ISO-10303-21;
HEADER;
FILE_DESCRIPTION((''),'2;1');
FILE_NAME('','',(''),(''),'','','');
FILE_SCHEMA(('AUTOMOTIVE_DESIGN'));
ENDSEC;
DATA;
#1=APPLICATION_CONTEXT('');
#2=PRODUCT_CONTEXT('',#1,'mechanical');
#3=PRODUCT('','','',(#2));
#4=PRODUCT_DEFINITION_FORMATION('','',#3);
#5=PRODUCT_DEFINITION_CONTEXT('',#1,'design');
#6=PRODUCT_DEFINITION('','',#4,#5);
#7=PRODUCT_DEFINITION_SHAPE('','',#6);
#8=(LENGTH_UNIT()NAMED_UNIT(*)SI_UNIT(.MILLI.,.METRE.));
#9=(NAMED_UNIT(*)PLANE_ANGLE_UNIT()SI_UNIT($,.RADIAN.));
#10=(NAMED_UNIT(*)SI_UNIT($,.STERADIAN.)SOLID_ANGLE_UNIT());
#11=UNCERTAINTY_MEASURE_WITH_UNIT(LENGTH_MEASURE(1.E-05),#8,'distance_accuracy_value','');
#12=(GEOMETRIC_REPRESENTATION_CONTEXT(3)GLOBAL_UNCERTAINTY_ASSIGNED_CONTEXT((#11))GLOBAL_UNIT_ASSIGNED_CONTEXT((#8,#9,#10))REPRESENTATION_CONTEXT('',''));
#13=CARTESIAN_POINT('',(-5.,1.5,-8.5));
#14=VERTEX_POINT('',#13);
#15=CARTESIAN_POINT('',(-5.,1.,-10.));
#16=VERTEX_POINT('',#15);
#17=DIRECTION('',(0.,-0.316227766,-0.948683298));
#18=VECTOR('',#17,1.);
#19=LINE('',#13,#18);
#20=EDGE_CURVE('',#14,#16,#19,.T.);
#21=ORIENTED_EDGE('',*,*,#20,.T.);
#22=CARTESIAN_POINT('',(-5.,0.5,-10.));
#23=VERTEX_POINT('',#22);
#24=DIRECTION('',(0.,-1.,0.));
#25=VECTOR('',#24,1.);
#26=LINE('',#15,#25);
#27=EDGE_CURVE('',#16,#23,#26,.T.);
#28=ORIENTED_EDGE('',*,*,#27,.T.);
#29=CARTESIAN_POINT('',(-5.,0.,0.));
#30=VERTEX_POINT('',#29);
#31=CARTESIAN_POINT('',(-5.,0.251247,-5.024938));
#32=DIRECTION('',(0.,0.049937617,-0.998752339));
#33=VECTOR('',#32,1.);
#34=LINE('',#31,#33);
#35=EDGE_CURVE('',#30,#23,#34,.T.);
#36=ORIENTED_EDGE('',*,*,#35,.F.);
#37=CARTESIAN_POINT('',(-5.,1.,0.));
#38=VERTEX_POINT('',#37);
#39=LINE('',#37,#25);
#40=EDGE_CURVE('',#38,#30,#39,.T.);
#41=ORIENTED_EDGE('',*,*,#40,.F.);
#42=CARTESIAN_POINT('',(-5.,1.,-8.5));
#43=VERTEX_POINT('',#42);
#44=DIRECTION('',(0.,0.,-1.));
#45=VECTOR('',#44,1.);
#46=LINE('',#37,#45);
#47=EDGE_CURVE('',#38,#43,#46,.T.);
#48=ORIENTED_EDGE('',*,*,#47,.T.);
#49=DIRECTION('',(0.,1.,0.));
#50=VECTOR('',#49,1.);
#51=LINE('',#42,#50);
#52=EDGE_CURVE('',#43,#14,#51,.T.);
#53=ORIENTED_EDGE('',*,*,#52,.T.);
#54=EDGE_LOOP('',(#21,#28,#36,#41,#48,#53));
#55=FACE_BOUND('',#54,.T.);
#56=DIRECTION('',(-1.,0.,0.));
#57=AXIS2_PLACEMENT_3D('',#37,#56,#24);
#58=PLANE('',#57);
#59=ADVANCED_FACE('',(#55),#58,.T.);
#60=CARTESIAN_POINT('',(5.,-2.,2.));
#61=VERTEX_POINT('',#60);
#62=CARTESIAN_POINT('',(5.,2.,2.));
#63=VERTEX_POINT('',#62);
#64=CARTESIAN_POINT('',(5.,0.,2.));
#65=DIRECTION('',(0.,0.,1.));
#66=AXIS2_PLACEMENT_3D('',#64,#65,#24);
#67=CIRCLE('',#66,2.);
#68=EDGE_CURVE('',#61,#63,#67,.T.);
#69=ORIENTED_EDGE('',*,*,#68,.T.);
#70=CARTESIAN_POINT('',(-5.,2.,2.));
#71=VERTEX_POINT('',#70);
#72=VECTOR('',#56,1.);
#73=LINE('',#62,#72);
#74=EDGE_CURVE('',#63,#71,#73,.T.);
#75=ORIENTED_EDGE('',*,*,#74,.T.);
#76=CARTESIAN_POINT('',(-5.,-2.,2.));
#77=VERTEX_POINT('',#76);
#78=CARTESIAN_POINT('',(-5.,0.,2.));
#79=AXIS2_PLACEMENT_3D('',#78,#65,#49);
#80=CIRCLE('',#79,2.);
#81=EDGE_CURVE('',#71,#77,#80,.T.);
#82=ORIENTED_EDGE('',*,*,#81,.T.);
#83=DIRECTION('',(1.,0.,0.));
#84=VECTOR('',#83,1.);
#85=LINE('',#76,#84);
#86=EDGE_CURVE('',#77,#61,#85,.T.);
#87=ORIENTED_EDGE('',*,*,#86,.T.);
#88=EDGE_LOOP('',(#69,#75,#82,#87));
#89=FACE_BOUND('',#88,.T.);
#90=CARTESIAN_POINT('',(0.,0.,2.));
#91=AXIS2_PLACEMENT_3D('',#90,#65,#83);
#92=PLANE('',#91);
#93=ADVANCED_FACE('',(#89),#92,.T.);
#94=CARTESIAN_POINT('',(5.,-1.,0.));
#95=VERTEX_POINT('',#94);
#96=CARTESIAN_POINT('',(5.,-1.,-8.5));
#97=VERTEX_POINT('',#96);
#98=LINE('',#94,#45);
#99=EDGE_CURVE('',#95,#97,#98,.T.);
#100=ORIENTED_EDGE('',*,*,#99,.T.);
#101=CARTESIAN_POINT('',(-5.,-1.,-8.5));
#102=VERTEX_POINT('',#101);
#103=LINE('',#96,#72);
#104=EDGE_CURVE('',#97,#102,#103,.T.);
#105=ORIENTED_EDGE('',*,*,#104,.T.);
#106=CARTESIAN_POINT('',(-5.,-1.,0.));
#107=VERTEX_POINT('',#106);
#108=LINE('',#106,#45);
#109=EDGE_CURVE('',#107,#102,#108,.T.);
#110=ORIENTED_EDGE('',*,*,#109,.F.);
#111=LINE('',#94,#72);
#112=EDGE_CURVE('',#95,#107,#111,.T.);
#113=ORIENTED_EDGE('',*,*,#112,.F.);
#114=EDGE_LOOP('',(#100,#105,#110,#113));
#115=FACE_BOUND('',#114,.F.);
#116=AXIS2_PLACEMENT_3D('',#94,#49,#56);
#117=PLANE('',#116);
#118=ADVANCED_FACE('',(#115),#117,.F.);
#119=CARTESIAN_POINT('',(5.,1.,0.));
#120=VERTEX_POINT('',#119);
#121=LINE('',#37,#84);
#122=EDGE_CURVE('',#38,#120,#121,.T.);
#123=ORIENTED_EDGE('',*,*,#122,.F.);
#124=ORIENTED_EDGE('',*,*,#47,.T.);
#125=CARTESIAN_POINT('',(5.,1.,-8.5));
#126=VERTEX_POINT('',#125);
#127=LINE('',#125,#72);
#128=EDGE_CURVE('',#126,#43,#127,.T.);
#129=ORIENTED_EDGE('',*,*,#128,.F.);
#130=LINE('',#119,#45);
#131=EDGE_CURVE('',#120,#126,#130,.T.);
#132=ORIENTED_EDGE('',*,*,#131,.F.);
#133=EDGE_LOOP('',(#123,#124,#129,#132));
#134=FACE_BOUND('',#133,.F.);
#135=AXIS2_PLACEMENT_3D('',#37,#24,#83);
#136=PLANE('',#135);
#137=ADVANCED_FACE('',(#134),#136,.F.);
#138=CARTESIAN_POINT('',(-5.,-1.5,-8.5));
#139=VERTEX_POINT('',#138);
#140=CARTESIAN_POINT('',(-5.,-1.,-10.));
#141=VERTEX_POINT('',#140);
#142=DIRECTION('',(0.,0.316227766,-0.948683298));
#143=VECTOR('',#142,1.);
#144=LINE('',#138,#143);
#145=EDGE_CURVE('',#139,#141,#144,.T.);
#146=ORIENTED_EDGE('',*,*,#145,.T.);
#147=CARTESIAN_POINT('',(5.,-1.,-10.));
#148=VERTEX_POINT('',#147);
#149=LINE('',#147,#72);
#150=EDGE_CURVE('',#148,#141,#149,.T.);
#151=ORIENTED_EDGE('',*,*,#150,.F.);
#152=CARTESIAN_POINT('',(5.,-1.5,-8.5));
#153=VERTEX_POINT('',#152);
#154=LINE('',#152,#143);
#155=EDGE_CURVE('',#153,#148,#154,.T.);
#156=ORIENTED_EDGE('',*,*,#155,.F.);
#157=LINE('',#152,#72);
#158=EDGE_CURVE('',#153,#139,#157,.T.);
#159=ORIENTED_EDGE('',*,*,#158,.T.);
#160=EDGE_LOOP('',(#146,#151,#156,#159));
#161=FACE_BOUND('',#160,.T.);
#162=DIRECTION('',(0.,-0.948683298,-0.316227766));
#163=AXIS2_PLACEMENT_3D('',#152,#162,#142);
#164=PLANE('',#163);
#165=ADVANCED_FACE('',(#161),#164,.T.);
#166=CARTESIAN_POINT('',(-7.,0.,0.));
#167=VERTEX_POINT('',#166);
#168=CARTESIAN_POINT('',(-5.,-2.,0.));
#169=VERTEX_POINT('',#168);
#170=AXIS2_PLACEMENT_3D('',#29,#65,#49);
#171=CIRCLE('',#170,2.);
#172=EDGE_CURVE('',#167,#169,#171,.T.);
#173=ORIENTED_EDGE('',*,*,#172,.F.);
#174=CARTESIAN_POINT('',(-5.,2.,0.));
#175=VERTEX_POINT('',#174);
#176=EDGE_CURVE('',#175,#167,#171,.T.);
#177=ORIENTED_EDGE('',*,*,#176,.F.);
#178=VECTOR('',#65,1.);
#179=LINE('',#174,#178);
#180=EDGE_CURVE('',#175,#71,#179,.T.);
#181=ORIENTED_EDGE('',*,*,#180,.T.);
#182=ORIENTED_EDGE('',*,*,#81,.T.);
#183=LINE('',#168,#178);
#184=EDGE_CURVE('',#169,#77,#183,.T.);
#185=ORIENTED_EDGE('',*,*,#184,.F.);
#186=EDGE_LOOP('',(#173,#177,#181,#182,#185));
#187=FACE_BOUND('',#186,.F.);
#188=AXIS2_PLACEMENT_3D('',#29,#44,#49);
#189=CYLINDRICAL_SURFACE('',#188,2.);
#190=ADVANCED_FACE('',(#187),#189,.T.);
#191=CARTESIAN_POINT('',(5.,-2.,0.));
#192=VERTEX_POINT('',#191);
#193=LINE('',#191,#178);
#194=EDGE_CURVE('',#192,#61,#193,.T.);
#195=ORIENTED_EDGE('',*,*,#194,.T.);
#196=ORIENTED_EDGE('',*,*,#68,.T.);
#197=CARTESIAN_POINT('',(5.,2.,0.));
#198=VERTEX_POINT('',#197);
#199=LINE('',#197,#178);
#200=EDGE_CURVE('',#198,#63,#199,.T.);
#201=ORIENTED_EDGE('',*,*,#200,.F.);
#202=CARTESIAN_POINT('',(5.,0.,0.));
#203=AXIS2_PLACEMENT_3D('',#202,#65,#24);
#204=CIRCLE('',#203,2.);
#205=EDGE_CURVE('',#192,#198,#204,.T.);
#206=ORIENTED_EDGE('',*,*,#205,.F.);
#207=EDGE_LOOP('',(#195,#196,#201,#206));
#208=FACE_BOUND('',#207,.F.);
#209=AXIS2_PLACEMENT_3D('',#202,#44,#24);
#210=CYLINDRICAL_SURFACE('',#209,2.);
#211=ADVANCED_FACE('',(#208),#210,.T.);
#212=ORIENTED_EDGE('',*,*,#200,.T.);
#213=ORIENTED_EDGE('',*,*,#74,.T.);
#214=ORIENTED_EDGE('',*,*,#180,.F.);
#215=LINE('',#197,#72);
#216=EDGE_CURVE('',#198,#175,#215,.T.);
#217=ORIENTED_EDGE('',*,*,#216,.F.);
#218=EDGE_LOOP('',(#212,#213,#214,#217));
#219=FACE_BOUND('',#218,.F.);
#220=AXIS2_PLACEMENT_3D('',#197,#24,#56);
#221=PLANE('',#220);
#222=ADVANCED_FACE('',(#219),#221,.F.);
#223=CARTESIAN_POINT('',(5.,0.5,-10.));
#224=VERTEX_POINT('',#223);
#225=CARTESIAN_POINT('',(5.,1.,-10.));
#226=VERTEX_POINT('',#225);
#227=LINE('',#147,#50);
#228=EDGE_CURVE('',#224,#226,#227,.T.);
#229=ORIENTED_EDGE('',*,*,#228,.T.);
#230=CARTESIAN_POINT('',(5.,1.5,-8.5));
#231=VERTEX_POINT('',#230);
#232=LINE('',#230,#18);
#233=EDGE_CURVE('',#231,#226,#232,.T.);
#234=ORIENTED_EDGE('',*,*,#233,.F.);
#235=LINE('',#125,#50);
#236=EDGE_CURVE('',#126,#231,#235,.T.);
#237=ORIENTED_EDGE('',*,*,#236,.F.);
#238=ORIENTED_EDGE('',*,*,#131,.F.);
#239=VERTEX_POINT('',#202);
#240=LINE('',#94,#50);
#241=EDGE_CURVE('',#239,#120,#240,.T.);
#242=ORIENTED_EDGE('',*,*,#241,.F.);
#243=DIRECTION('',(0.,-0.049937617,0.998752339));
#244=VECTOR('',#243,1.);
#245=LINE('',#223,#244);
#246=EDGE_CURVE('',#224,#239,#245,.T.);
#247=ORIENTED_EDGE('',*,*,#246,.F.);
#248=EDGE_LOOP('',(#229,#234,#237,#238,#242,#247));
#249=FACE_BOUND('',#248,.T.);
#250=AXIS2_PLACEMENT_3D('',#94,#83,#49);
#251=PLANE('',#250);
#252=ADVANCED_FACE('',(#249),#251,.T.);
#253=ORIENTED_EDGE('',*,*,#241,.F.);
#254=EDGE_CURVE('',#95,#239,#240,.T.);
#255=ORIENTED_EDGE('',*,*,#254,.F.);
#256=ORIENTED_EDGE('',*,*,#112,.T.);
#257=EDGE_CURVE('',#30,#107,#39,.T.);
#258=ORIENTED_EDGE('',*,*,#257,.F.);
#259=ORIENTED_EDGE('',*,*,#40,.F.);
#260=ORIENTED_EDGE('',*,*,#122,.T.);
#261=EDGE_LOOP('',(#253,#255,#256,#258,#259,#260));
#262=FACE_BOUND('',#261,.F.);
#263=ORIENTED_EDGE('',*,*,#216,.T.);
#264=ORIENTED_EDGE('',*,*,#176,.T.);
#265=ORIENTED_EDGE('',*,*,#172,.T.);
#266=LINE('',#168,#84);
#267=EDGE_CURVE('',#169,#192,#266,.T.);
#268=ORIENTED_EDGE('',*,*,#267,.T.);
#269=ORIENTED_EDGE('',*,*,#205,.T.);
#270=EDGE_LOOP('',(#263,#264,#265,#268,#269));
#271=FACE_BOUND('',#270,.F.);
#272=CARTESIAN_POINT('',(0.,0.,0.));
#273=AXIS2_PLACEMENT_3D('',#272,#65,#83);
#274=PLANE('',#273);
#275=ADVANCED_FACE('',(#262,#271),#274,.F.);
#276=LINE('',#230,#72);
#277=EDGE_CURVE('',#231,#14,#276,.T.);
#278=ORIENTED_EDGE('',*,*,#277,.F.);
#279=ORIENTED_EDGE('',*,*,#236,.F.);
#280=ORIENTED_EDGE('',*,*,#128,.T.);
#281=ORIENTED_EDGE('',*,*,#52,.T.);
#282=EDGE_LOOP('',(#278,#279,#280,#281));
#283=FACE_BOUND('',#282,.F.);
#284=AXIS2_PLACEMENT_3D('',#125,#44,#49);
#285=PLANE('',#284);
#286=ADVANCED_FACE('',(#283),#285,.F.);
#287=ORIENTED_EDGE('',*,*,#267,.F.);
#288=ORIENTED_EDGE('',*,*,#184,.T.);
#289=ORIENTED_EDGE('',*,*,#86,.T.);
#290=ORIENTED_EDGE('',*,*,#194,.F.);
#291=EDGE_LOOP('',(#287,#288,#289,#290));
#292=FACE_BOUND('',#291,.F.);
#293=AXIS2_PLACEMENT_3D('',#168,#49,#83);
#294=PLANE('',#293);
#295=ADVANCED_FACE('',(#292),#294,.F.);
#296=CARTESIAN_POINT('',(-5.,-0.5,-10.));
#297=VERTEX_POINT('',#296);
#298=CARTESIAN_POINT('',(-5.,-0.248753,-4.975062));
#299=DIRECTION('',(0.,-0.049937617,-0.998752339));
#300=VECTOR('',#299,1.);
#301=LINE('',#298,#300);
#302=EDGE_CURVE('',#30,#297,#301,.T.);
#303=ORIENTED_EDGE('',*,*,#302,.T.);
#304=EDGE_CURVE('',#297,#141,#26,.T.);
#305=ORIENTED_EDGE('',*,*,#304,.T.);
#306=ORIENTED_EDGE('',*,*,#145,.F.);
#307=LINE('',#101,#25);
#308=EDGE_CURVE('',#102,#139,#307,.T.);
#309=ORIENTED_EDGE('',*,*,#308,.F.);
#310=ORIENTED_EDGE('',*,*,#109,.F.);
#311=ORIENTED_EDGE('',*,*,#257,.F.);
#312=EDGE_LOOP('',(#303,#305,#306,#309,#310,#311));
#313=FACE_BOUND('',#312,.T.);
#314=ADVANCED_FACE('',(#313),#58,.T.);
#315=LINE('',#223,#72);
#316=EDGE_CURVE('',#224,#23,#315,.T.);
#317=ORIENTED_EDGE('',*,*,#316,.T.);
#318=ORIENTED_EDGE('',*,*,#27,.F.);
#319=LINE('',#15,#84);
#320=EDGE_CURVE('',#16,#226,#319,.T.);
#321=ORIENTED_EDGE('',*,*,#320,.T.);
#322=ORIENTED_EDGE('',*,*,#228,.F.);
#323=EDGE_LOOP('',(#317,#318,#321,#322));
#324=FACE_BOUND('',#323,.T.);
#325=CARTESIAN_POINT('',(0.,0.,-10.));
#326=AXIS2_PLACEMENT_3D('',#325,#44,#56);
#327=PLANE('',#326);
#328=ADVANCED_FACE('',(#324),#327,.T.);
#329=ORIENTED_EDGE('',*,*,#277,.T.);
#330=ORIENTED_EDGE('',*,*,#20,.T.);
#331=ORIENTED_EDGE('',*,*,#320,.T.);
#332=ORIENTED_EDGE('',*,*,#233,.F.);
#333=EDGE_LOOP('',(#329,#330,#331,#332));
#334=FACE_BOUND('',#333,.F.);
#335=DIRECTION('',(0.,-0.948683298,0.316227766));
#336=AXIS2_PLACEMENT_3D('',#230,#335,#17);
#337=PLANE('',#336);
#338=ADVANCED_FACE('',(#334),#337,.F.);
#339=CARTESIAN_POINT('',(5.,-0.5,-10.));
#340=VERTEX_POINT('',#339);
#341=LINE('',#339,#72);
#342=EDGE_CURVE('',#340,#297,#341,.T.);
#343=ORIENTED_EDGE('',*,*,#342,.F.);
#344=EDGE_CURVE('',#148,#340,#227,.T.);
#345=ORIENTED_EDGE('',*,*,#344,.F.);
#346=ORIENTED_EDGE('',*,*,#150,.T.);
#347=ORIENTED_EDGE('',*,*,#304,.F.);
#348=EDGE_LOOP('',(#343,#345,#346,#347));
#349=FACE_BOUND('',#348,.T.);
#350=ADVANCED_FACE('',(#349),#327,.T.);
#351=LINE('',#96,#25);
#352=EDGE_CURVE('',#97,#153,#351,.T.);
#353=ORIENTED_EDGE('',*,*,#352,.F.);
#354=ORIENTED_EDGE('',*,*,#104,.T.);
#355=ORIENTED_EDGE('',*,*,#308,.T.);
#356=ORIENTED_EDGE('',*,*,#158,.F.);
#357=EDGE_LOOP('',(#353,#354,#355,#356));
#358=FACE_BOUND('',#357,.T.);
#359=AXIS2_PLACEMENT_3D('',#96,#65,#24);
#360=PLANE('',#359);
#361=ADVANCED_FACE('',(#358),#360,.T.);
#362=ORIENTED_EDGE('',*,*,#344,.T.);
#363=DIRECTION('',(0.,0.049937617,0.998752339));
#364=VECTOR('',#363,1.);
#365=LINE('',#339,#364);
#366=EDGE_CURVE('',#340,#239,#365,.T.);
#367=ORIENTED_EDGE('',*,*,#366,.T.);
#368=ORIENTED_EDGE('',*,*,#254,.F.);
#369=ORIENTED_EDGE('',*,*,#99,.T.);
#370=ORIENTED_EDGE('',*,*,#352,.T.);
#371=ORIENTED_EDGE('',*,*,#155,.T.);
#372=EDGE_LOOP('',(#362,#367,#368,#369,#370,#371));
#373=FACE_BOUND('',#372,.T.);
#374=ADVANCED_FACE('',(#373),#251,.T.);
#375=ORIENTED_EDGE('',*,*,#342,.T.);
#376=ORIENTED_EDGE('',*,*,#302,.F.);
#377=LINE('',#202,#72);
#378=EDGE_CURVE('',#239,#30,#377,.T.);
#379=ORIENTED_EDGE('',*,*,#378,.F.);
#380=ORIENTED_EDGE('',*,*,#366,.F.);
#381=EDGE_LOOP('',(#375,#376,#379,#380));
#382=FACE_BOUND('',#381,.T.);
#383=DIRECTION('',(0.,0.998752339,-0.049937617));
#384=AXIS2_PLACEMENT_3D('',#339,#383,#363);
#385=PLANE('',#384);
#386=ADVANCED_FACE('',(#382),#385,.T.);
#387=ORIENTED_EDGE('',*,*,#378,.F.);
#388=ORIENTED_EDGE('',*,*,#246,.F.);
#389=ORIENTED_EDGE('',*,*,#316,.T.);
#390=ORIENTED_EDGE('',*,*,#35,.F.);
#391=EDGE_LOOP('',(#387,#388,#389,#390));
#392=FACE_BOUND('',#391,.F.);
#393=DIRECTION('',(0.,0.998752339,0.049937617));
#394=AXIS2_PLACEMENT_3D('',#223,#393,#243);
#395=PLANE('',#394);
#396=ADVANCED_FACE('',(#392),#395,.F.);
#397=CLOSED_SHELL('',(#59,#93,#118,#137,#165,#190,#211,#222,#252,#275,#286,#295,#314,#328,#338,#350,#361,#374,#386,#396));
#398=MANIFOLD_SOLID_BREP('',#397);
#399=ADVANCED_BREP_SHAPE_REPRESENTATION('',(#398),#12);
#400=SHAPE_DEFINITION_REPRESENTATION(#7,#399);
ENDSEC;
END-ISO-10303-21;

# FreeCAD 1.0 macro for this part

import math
import FreeCAD as App
import Part
import Sketcher
from FreeCAD import Vector


def add_polygon(sketch, points):
    """Adds a closed chain of lines whose ends are joined by coincident constraints."""
    first, n = sketch.GeometryCount, len(points)
    for a, b in zip(points, points[1:] + points[:1]):
        sketch.addGeometry(Part.LineSegment(App.Vector(*a, 0), App.Vector(*b, 0)), False)
    for i in range(n):
        sketch.addConstraint(Sketcher.Constraint("Coincident", first + i, 2, first + (i + 1) % n, 1))

doc = App.newDocument("Part")
body = doc.addObject("PartDesign::Body", "Body")

sketch1 = doc.addObject("Sketcher::SketchObject", "Sketch")
body.addObject(sketch1)
sketch1.AttachmentSupport = (doc.XY_Plane, [""])
sketch1.MapMode = "FlatFace"
sketch1.addGeometry([
    Part.ArcOfCircle(Part.Circle(Vector(-5, 0, 0), Vector(0, 0, 1), 2), math.radians(90), math.radians(270)),
    Part.LineSegment(Vector(-5, -2, 0), Vector(5, -2, 0)),
    Part.ArcOfCircle(Part.Circle(Vector(5, 0, 0), Vector(0, 0, 1), 2), math.radians(-90), math.radians(90)),
    Part.LineSegment(Vector(5, 2, 0), Vector(-5, 2, 0)),
], False)
sketch1.addConstraint([
    Sketcher.Constraint("Tangent", 0, 2, 1, 1),
    Sketcher.Constraint("Tangent", 1, 2, 2, 1),
    Sketcher.Constraint("Tangent", 2, 2, 3, 1),
    Sketcher.Constraint("Tangent", 3, 2, 0, 1),
    Sketcher.Constraint("Horizontal", 1),
    Sketcher.Constraint("Horizontal", 3),
    Sketcher.Constraint("Symmetric", 0, 3, 2, 3, -1, 1),
    Sketcher.Constraint("Radius", 0, 2.0),
    Sketcher.Constraint("DistanceX", 1, 1, 1, 2, 10.0),
])
pad1 = doc.addObject("PartDesign::Pad", "Pad")
body.addObject(pad1)
pad1.Profile = sketch1
pad1.Length = 2

sketch2 = doc.addObject("Sketcher::SketchObject", "Sketch001")
body.addObject(sketch2)
sketch2.AttachmentSupport = (doc.XY_Plane, [""])
sketch2.MapMode = "FlatFace"
add_polygon(sketch2, [(5, 1), (5, -1), (-5, -1), (-5, 1)])
sketch2.addConstraint([
    Sketcher.Constraint("Vertical", 0),
    Sketcher.Constraint("Horizontal", 1),
    Sketcher.Constraint("Vertical", 2),
    Sketcher.Constraint("Horizontal", 3),
    Sketcher.Constraint("Symmetric", 0, 2, 2, 2, -1, 1),
    Sketcher.Constraint("DistanceX", 1, 2, 1, 1, 10.0),
    Sketcher.Constraint("DistanceY", 0, 2, 0, 1, 2.0),
])
pad2 = doc.addObject("PartDesign::Pad", "Pad001")
body.addObject(pad2)
pad2.Profile = sketch2
pad2.Length = 10
pad2.Reversed = True

sketch3 = doc.addObject("Sketcher::SketchObject", "Sketch002")
body.addObject(sketch3)
sketch3.AttachmentSupport = (doc.YZ_Plane, [""])
sketch3.MapMode = "FlatFace"
sketch3.AttachmentOffset = App.Placement(Vector(0, 0, 5), App.Rotation())
add_polygon(sketch3, [(1.5, -8.5), (1, -8.5), (1, -10)])
add_polygon(sketch3, [(-1, -10), (-1, -8.5), (-1.5, -8.5)])
sketch3.addConstraint([
    Sketcher.Constraint("Horizontal", 0),
    Sketcher.Constraint("Vertical", 1),
    Sketcher.Constraint("Vertical", 3),
    Sketcher.Constraint("Horizontal", 4),
    Sketcher.Constraint("Symmetric", 0, 2, 3, 2, -2),
    Sketcher.Constraint("Horizontal", 1, 2, 5, 2),
    Sketcher.Constraint("Equal", 0, 4),
    Sketcher.Constraint("DistanceX", 0, 2, 0, 1, 0.5),
    Sketcher.Constraint("DistanceY", 1, 2, 1, 1, 1.5),
    Sketcher.Constraint("DistanceX", -1, 1, 2, 2, 1.5),
    Sketcher.Constraint("DistanceY", 1, 2, -1, 1, 10.0),
])
pad3 = doc.addObject("PartDesign::Pad", "Pad002")
body.addObject(pad3)
pad3.Profile = sketch3
pad3.Length = 10
pad3.Reversed = True

sketch4 = doc.addObject("Sketcher::SketchObject", "Sketch003")
body.addObject(sketch4)
sketch4.AttachmentSupport = (doc.YZ_Plane, [""])
sketch4.MapMode = "FlatFace"
sketch4.AttachmentOffset = App.Placement(Vector(0, 0, 5), App.Rotation())
add_polygon(sketch4, [(0, 0), (-0.5, -10), (0.5, -10)])
sketch4.addConstraint([
    Sketcher.Constraint("Horizontal", 1),
    Sketcher.Constraint("Coincident", 2, 2, -1, 1),
    Sketcher.Constraint("Equal", 0, 2),
    Sketcher.Constraint("DistanceX", 0, 2, -1, 1, 0.5),
    Sketcher.Constraint("DistanceY", 0, 2, -1, 1, 10.0),
])
pocket1 = doc.addObject("PartDesign::Pocket", "Pocket")
body.addObject(pocket1)
pocket1.Profile = sketch4
pocket1.Type = "ThroughAll"

doc.recompute()
